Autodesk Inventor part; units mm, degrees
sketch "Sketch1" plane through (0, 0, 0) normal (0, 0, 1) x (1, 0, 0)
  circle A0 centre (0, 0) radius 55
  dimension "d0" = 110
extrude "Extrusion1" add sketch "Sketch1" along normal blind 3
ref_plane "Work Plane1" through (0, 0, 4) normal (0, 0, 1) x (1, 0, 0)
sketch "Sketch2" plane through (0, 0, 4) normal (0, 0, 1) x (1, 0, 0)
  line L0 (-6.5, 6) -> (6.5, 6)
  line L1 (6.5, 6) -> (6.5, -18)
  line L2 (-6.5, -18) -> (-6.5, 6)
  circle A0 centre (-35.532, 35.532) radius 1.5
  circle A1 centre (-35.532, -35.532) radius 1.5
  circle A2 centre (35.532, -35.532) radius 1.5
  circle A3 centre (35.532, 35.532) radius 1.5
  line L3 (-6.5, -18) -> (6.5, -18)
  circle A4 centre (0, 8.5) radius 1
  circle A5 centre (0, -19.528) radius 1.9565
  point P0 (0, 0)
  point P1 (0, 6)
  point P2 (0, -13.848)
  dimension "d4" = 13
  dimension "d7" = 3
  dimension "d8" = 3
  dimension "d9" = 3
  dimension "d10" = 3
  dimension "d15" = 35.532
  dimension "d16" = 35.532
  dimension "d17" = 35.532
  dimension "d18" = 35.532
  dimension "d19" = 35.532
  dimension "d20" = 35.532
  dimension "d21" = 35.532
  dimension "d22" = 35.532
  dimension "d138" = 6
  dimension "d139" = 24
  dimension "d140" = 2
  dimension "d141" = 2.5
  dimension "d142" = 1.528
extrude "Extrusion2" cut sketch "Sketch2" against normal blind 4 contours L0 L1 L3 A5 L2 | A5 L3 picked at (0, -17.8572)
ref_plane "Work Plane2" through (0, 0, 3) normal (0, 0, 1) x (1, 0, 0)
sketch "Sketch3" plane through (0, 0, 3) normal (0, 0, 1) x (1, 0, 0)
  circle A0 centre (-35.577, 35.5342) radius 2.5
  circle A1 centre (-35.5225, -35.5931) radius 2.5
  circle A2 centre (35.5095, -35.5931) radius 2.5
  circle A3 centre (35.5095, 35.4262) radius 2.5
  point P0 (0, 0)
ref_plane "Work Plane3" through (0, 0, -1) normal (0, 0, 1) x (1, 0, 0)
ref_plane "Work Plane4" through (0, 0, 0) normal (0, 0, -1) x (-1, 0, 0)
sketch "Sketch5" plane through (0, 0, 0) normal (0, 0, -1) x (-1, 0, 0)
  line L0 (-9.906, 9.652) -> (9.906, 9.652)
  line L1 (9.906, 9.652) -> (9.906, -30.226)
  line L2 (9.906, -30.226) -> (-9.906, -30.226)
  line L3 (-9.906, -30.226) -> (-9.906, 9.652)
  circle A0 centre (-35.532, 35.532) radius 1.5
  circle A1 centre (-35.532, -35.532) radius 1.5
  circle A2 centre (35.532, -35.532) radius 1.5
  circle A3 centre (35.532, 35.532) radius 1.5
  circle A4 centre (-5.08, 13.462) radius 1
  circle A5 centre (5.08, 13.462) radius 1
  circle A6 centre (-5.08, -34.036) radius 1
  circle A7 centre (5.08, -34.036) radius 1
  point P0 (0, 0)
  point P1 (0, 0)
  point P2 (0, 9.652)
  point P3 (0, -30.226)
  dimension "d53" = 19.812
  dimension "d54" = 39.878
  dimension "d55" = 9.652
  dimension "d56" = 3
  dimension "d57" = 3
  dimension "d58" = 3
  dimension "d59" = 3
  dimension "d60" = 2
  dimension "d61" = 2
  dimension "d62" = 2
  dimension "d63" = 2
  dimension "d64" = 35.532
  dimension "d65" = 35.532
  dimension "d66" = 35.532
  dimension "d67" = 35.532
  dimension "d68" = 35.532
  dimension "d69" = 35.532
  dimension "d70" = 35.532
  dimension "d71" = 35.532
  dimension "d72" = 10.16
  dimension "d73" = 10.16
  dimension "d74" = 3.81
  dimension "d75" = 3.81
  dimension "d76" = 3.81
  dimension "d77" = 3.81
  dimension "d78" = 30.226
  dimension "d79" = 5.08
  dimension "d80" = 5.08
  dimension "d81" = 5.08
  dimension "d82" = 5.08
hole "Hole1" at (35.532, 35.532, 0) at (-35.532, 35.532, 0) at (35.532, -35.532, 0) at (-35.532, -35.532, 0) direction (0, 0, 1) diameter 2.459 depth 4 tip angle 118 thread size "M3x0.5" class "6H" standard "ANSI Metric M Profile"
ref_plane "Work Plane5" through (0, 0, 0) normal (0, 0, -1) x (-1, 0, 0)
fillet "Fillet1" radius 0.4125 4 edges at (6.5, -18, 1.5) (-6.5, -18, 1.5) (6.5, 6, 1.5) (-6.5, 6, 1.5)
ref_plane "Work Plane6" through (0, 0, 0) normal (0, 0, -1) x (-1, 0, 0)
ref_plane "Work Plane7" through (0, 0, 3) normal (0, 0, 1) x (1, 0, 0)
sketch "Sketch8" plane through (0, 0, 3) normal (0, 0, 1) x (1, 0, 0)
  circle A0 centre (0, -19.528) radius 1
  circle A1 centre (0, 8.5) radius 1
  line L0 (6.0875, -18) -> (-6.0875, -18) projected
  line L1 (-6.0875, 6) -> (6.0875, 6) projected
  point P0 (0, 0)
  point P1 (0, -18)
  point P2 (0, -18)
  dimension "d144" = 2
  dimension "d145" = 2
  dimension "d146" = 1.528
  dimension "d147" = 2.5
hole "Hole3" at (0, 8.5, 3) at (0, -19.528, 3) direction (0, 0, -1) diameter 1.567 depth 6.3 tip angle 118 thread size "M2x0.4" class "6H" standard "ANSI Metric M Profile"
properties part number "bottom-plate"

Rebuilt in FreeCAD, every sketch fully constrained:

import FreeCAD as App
import Part
import Sketcher
from FreeCAD import Vector
Q = App.Units.Quantity


def edges_at(feature, points):
    """Names of the edges that pass closest to the given points."""
    edges = feature.Shape.Edges
    near = lambda p: min(range(len(edges)), key=lambda i: edges[i].distToShape(Part.Vertex(*p))[0])
    return sorted({f"Edge{near(p) + 1}" for p in points})

doc = App.newDocument("Part")
body = doc.addObject("PartDesign::Body", "Body")

# Sketch on XY plane
sketch1 = body.newObject("Sketcher::SketchObject", "Sketch")
sketch1.AttachmentSupport = (doc.getObject("XY_Plane"), [""])
sketch1.MapMode = "FlatFace"
sketch1.addGeometry(Part.Circle(Vector(0, 0, 0), Vector(0, 0, 1), 55), False)
sketch1.addConstraint([
    Sketcher.Constraint("Coincident", 0, 3, -1, 1),
    Sketcher.Constraint("Diameter", 0, Q("110 mm")),
])
pad1 = body.newObject("PartDesign::Pad", "Pad")
pad1.Profile = sketch1
pad1.Length = 3

# Sketch on XY plane
sketch2 = body.newObject("Sketcher::SketchObject", "Sketch001")
sketch2.AttachmentSupport = (doc.getObject("XY_Plane"), [""])
sketch2.MapMode = "FlatFace"
sketch2.AttachmentOffset = App.Placement(Vector(0, 0, 4), App.Rotation())
sketch2.addGeometry([
    Part.LineSegment(Vector(6.5, 6, 0), Vector(-6.5, 6, 0)),
    Part.LineSegment(Vector(-6.5, 6, 0), Vector(-6.5, -18, 0)),
    Part.LineSegment(Vector(-6.5, -18, 0), Vector(6.5, -18, 0)),
    Part.LineSegment(Vector(6.5, -18, 0), Vector(6.5, 6, 0)),
], False)
sketch2.addConstraint([
    Sketcher.Constraint("Coincident", 0, 2, 1, 1),
    Sketcher.Constraint("Coincident", 1, 2, 2, 1),
    Sketcher.Constraint("Coincident", 2, 2, 3, 1),
    Sketcher.Constraint("Coincident", 3, 2, 0, 1),
    Sketcher.Constraint("Horizontal", 0),
    Sketcher.Constraint("Vertical", 1),
    Sketcher.Constraint("Horizontal", 2),
    Sketcher.Constraint("Vertical", 3),
    Sketcher.Constraint("DistanceX", 0, 2, 0, 1, Q("13 mm")),
    Sketcher.Constraint("DistanceY", 1, 2, 1, 1, Q("24 mm")),
    Sketcher.Constraint("DistanceY", -1, 1, 0, 2, Q("6 mm")),
    Sketcher.Constraint("DistanceX", 0, 2, -1, 1, Q("6.5 mm")),
])
pocket1 = body.newObject("PartDesign::Pocket", "Pocket")
pocket1.Profile = sketch2
pocket1.Length = 4

# Sketch on XY plane
sketch3 = body.newObject("Sketcher::SketchObject", "Sketch002")
sketch3.AttachmentSupport = (doc.getObject("XY_Plane"), [""])
sketch3.MapMode = "FlatFace"
sketch3.addGeometry([
    Part.Circle(Vector(35.532, 35.532, 0), Vector(0, 0, 1), 1.2295),
    Part.Circle(Vector(-35.532, 35.532, 0), Vector(0, 0, 1), 1.2295),
    Part.Circle(Vector(35.532, -35.532, 0), Vector(0, 0, 1), 1.2295),
    Part.Circle(Vector(-35.532, -35.532, 0), Vector(0, 0, 1), 1.2295),
], False)
sketch3.addConstraint([
    Sketcher.Constraint("Equal", 0, 1),
    Sketcher.Constraint("Equal", 1, 2),
    Sketcher.Constraint("Equal", 2, 3),
    Sketcher.Constraint("Symmetric", 1, 3, 2, 3, -1, 1),
    Sketcher.Constraint("Symmetric", 0, 3, 3, 3, -1, 1),
    Sketcher.Constraint("Symmetric", 0, 3, 1, 3, -2),
    Sketcher.Constraint("Diameter", 0, Q("2.459 mm")),
    Sketcher.Constraint("DistanceX", -1, 1, 0, 3, Q("35.532 mm")),
    Sketcher.Constraint("DistanceY", -1, 1, 0, 3, Q("35.532 mm")),
])
doc.recompute()
hole = body.newObject("PartDesign::Hole", "Hole")
hole.Profile = sketch3
hole.ThreadType = "None"
hole.Diameter = 2.459
hole.DepthType = "Dimension"
hole.Depth = 4
hole.DrillPoint = "Angled"
hole.DrillPointAngle = 118
hole.Reversed = True
doc.recompute()

fillet = body.newObject("PartDesign::Fillet", "Fillet")
fillet.Base = (hole, edges_at(hole, [
    (6.5, -18, 1.5),
    (-6.5, -18, 1.5),
    (6.5, 6, 1.5),
    (-6.5, 6, 1.5),
]))
fillet.Radius = 0.4125

# Sketch on XY plane
sketch4 = body.newObject("Sketcher::SketchObject", "Sketch003")
sketch4.AttachmentSupport = (doc.getObject("XY_Plane"), [""])
sketch4.MapMode = "FlatFace"
sketch4.AttachmentOffset = App.Placement(Vector(0, 0, 3), App.Rotation())
sketch4.addGeometry([
    Part.Circle(Vector(0, 8.5, 0), Vector(0, 0, 1), 0.7835),
    Part.Circle(Vector(0, -19.528, 0), Vector(0, 0, 1), 0.7835),
], False)
sketch4.addConstraint([
    Sketcher.Constraint("Equal", 0, 1),
    Sketcher.Constraint("PointOnObject", 0, 3, -2),
    Sketcher.Constraint("PointOnObject", 1, 3, -2),
    Sketcher.Constraint("Diameter", 0, Q("1.567 mm")),
    Sketcher.Constraint("DistanceY", -1, 1, 0, 3, Q("8.5 mm")),
    Sketcher.Constraint("DistanceY", 1, 3, -1, 1, Q("19.528 mm")),
])
doc.recompute()
hole2 = body.newObject("PartDesign::Hole", "Hole001")
hole2.Profile = sketch4
hole2.ThreadType = "None"
hole2.Diameter = 1.567
hole2.DepthType = "Dimension"
hole2.Depth = 6.3
hole2.DrillPoint = "Angled"
hole2.DrillPointAngle = 118

doc.recompute()
